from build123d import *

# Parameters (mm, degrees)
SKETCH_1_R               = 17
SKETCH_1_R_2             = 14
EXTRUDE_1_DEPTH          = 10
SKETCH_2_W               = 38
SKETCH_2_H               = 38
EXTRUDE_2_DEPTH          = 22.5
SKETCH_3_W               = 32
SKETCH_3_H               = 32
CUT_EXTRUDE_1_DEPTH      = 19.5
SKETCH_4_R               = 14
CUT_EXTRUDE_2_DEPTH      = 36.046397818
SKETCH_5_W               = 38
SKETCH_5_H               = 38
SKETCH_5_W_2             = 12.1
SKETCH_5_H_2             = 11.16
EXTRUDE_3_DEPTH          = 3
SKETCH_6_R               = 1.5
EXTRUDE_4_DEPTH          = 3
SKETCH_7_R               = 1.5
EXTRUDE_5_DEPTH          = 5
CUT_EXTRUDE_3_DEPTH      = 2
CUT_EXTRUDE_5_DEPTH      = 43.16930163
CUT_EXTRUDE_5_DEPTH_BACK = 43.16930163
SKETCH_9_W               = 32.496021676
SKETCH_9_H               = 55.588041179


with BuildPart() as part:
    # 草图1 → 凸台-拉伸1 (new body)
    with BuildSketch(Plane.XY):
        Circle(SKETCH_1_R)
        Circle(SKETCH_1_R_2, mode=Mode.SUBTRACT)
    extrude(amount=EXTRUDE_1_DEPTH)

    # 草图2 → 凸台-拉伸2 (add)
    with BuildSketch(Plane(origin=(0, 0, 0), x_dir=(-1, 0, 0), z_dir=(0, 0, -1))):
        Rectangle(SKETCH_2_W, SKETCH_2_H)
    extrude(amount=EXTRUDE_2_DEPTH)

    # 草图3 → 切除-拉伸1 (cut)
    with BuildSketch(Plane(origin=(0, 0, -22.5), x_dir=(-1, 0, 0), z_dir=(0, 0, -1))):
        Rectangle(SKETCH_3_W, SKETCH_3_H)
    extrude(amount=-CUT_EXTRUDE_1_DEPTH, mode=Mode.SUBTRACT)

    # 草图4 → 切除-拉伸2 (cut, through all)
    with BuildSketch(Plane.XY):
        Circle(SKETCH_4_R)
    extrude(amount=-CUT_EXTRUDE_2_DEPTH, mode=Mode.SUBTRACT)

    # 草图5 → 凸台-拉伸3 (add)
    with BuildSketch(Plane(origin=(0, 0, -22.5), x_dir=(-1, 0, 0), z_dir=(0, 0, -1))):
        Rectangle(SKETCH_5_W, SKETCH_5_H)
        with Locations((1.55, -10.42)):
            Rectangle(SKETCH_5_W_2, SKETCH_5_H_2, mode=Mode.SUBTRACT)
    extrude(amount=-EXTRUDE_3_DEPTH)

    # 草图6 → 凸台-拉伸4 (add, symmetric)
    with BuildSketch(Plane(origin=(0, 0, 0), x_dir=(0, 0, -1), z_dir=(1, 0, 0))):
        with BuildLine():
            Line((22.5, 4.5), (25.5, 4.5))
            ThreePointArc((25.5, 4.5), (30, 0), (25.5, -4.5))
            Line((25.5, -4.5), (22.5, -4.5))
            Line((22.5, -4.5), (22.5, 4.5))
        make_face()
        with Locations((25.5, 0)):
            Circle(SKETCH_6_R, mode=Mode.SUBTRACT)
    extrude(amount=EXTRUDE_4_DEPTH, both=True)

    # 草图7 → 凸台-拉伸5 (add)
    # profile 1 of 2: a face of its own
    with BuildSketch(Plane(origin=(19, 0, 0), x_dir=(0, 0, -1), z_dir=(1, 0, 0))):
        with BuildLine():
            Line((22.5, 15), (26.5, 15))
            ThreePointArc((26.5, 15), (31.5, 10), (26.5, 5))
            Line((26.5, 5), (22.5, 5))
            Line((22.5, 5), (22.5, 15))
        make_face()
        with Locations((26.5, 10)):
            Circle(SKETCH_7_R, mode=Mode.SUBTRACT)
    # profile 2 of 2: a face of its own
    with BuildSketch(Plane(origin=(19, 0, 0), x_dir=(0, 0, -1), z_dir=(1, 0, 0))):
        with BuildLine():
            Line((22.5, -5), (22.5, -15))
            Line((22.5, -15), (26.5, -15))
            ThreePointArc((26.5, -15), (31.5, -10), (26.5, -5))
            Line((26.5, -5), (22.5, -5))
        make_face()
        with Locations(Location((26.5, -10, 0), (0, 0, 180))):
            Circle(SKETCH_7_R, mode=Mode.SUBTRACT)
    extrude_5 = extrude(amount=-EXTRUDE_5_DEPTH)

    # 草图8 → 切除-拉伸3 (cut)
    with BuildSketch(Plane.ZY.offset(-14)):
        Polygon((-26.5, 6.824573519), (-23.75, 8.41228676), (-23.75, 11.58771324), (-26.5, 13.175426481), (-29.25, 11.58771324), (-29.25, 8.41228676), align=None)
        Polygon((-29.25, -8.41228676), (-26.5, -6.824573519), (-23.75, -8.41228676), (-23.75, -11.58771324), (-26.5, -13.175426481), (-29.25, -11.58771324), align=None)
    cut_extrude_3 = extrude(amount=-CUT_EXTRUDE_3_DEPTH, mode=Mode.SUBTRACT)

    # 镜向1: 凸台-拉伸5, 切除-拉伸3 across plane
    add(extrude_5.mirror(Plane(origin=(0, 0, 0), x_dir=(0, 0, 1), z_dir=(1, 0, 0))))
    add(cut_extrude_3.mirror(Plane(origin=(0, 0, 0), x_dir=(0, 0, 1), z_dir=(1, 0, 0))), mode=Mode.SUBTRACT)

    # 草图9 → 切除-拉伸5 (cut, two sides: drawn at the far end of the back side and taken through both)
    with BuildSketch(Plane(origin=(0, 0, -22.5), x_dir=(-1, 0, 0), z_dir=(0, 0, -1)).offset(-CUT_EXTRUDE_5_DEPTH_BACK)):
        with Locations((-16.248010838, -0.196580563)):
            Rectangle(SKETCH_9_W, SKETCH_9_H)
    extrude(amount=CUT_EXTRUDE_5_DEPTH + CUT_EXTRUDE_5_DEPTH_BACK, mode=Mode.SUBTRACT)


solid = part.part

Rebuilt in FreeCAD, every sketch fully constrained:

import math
import FreeCAD as App
import Part
import Sketcher
from FreeCAD import Vector
Q = App.Units.Quantity

doc = App.newDocument("Part")
params = doc.addObject("Spreadsheet::Sheet", "Params")
for row, (alias, value) in enumerate([
    ("sketch1_diameter", "34 mm"),
    ("sketch1_diameter2", "28 mm"),
    ("pad1_length", "10 mm"),
    ("sketch2_width", "38 mm"),
    ("pad2_length", "22.5 mm"),
    ("sketch3_width", "32 mm"),
    ("pocket1_length", "19.5 mm"),
    ("sketch4_diameter", "28 mm"),
    ("sketch5_width", "38 mm"),
    ("sketch5_width2", "12.1 mm"),
    ("sketch5_height", "11.16 mm"),
    ("pad3_length", "3 mm"),
    ("sketch6_diameter", "3 mm"),
    ("sketch6_radius", "4.5 mm"),
    ("sketch6_height", "3 mm"),
    ("pad4_length", "6 mm"),
    ("sketch7_diameter", "3 mm"),
    ("sketch7_radius", "5 mm"),
    ("sketch7_height", "4 mm"),
    ("pad5_length", "5 mm"),
    ("pocket3_length", "2 mm"),
], start=1):
    params.set(f"A{row}", alias)
    params.set(f"B{row}", "=" + value)
    params.setAlias(f"B{row}", alias)

body = doc.addObject("PartDesign::Body", "Body")

# Sketch on XY plane
sketch1 = body.newObject("Sketcher::SketchObject", "Sketch")
sketch1.AttachmentSupport = (doc.getObject("XY_Plane"), [""])
sketch1.MapMode = "FlatFace"
sketch1.addGeometry([
    Part.Circle(Vector(0, 0, 0), Vector(0, 0, 1), 17),
    Part.Circle(Vector(0, 0, 0), Vector(0, 0, 1), 14),
], False)
sketch1.addConstraint([
    Sketcher.Constraint("Coincident", 0, 3, -1, 1),
    Sketcher.Constraint("Coincident", 1, 3, -1, 1),
    Sketcher.Constraint("Diameter", 0, 34.0),
    Sketcher.Constraint("Diameter", 1, 28.0),
])
sketch1.setExpression("Constraints[2]", "Params.sketch1_diameter")
sketch1.setExpression("Constraints[3]", "Params.sketch1_diameter2")
pad1 = body.newObject("PartDesign::Pad", "Pad")
pad1.Profile = sketch1
pad1.setExpression("Length", "Params.pad1_length")

# Sketch on XY plane
sketch2 = body.newObject("Sketcher::SketchObject", "Sketch001")
sketch2.AttachmentSupport = (doc.getObject("XY_Plane"), [""])
sketch2.MapMode = "FlatFace"
sketch2.addGeometry([
    Part.LineSegment(Vector(19, 19, 0), Vector(19, -19, 0)),
    Part.LineSegment(Vector(19, -19, 0), Vector(-19, -19, 0)),
    Part.LineSegment(Vector(-19, -19, 0), Vector(-19, 19, 0)),
    Part.LineSegment(Vector(-19, 19, 0), Vector(19, 19, 0)),
], False)
sketch2.addConstraint([
    Sketcher.Constraint("Coincident", 0, 2, 1, 1),
    Sketcher.Constraint("Coincident", 1, 2, 2, 1),
    Sketcher.Constraint("Coincident", 2, 2, 3, 1),
    Sketcher.Constraint("Coincident", 3, 2, 0, 1),
    Sketcher.Constraint("Vertical", 0),
    Sketcher.Constraint("Horizontal", 1),
    Sketcher.Constraint("Vertical", 2),
    Sketcher.Constraint("Horizontal", 3),
    Sketcher.Constraint("Symmetric", 0, 2, 2, 2, -1, 1),
    Sketcher.Constraint("Equal", 3, 0),
    Sketcher.Constraint("DistanceX", 1, 2, 1, 1, 38.0),
])
sketch2.setExpression("Constraints[10]", "Params.sketch2_width")
pad2 = body.newObject("PartDesign::Pad", "Pad001")
pad2.Profile = sketch2
pad2.setExpression("Length", "Params.pad2_length")
pad2.Reversed = True

# Sketch on XY plane
sketch3 = body.newObject("Sketcher::SketchObject", "Sketch002")
sketch3.AttachmentSupport = (doc.getObject("XY_Plane"), [""])
sketch3.MapMode = "FlatFace"
sketch3.AttachmentOffset = App.Placement(Vector(0, 0, -22.5), App.Rotation())
sketch3.addGeometry([
    Part.LineSegment(Vector(16, 16, 0), Vector(16, -16, 0)),
    Part.LineSegment(Vector(16, -16, 0), Vector(-16, -16, 0)),
    Part.LineSegment(Vector(-16, -16, 0), Vector(-16, 16, 0)),
    Part.LineSegment(Vector(-16, 16, 0), Vector(16, 16, 0)),
], False)
sketch3.addConstraint([
    Sketcher.Constraint("Coincident", 0, 2, 1, 1),
    Sketcher.Constraint("Coincident", 1, 2, 2, 1),
    Sketcher.Constraint("Coincident", 2, 2, 3, 1),
    Sketcher.Constraint("Coincident", 3, 2, 0, 1),
    Sketcher.Constraint("Vertical", 0),
    Sketcher.Constraint("Horizontal", 1),
    Sketcher.Constraint("Vertical", 2),
    Sketcher.Constraint("Horizontal", 3),
    Sketcher.Constraint("Symmetric", 0, 2, 2, 2, -1, 1),
    Sketcher.Constraint("Equal", 3, 0),
    Sketcher.Constraint("DistanceX", 1, 2, 1, 1, 32.0),
])
sketch3.setExpression("Constraints[10]", "Params.sketch3_width")
pocket1 = body.newObject("PartDesign::Pocket", "Pocket")
pocket1.Profile = sketch3
pocket1.setExpression("Length", "Params.pocket1_length")
pocket1.Reversed = True

# Sketch on XY plane
sketch4 = body.newObject("Sketcher::SketchObject", "Sketch003")
sketch4.AttachmentSupport = (doc.getObject("XY_Plane"), [""])
sketch4.MapMode = "FlatFace"
sketch4.addGeometry(Part.Circle(Vector(0, 0, 0), Vector(0, 0, 1), 14), False)
sketch4.addConstraint([
    Sketcher.Constraint("Coincident", 0, 3, -1, 1),
    Sketcher.Constraint("Diameter", 0, 28.0),
])
sketch4.setExpression("Constraints[1]", "Params.sketch4_diameter")
pocket2 = body.newObject("PartDesign::Pocket", "Pocket001")
pocket2.Profile = sketch4
pocket2.Type = "ThroughAll"

# Sketch on XY plane
sketch5 = body.newObject("Sketcher::SketchObject", "Sketch004")
sketch5.AttachmentSupport = (doc.getObject("XY_Plane"), [""])
sketch5.MapMode = "FlatFace"
sketch5.AttachmentOffset = App.Placement(Vector(0, 0, -22.5), App.Rotation())
sketch5.addGeometry([
    Part.LineSegment(Vector(19, 19, 0), Vector(19, -19, 0)),  # 0
    Part.LineSegment(Vector(19, -19, 0), Vector(-19, -19, 0)),  # 1
    Part.LineSegment(Vector(-19, -19, 0), Vector(-19, 19, 0)),  # 2
    Part.LineSegment(Vector(-19, 19, 0), Vector(19, 19, 0)),  # 3
    Part.LineSegment(Vector(-8, -16, 0), Vector(4, -16, 0)),  # 4
    Part.LineSegment(Vector(4, -16, 0), Vector(4, -5, 0)),  # 5
    Part.LineSegment(Vector(4, -5, 0), Vector(-8, -5, 0)),  # 6
    Part.LineSegment(Vector(-8, -5, 0), Vector(-8, -16, 0)),  # 7
], False)
sketch5.addConstraint([
    Sketcher.Constraint("Coincident", 0, 2, 1, 1),
    Sketcher.Constraint("Coincident", 1, 2, 2, 1),
    Sketcher.Constraint("Coincident", 2, 2, 3, 1),
    Sketcher.Constraint("Coincident", 3, 2, 0, 1),
    Sketcher.Constraint("Coincident", 4, 2, 5, 1),
    Sketcher.Constraint("Coincident", 5, 2, 6, 1),
    Sketcher.Constraint("Coincident", 6, 2, 7, 1),
    Sketcher.Constraint("Coincident", 7, 2, 4, 1),
    Sketcher.Constraint("Vertical", 0),
    Sketcher.Constraint("Horizontal", 1),
    Sketcher.Constraint("Vertical", 2),
    Sketcher.Constraint("Horizontal", 3),
    Sketcher.Constraint("Horizontal", 4),
    Sketcher.Constraint("Vertical", 5),
    Sketcher.Constraint("Horizontal", 6),
    Sketcher.Constraint("Vertical", 7),
    Sketcher.Constraint("Symmetric", 0, 2, 2, 2, -1, 1),
    Sketcher.Constraint("Equal", 3, 0),
    Sketcher.Constraint("DistanceX", 1, 2, 1, 1, 38.0),
    Sketcher.Constraint("DistanceX", 4, 1, 4, 2, 12.1),
    Sketcher.Constraint("DistanceY", 4, 2, -1, 1, 16.0),
    Sketcher.Constraint("DistanceY", 5, 1, 5, 2, 11.16),
    Sketcher.Constraint("DistanceX", -1, 1, 4, 2, 4.5),
])
sketch5.setExpression("Constraints[18]", "Params.sketch5_width")
sketch5.setExpression("Constraints[19]", "Params.sketch5_width2")
sketch5.setExpression("Constraints[21]", "Params.sketch5_height")
pad3 = body.newObject("PartDesign::Pad", "Pad002")
pad3.Profile = sketch5
pad3.setExpression("Length", "Params.pad3_length")

# Sketch on YZ plane
sketch6 = body.newObject("Sketcher::SketchObject", "Sketch005")
sketch6.AttachmentSupport = (doc.getObject("YZ_Plane"), [""])
sketch6.MapMode = "FlatFace"
sketch6.addGeometry([
    Part.LineSegment(Vector(4.5, -25.5, 0), Vector(4.5, -22.5, 0)),  # 0
    Part.LineSegment(Vector(4.5, -22.5, 0), Vector(-4.5, -22.5, 0)),  # 1
    Part.LineSegment(Vector(-4.5, -22.5, 0), Vector(-4.5, -25.5, 0)),  # 2
    Part.ArcOfCircle(Part.Circle(Vector(0, -25.5, 0), Vector(0, 0, 1), 4.5), math.radians(180), math.radians(360)),  # 3
    Part.Circle(Vector(0, -25.5, 0), Vector(0, 0, 1), 1.5),  # 4
], False)
sketch6.addConstraint([
    Sketcher.Constraint("Coincident", 0, 2, 1, 1),
    Sketcher.Constraint("Coincident", 1, 2, 2, 1),
    Sketcher.Constraint("Tangent", 2, 2, 3, 1),
    Sketcher.Constraint("Tangent", 3, 2, 0, 1),
    Sketcher.Constraint("Vertical", 0),
    Sketcher.Constraint("Horizontal", 1),
    Sketcher.Constraint("Vertical", 2),
    Sketcher.Constraint("Coincident", 4, 3, 3, 3),
    Sketcher.Constraint("PointOnObject", 3, 3, -2),
    Sketcher.Constraint("Diameter", 4, 3.0),
    Sketcher.Constraint("Radius", 3, 4.5),
    Sketcher.Constraint("DistanceY", 0, 1, 0, 2, 3.0),
    Sketcher.Constraint("DistanceY", 3, 3, -1, 1, 25.5),
])
sketch6.setExpression("Constraints[9]", "Params.sketch6_diameter")
sketch6.setExpression("Constraints[10]", "Params.sketch6_radius")
sketch6.setExpression("Constraints[11]", "Params.sketch6_height")
pad4 = body.newObject("PartDesign::Pad", "Pad003")
pad4.Profile = sketch6
pad4.setExpression("Length", "Params.pad4_length")
pad4.Midplane = True

# Sketch on YZ plane
sketch7 = body.newObject("Sketcher::SketchObject", "Sketch006")
sketch7.AttachmentSupport = (doc.getObject("YZ_Plane"), [""])
sketch7.MapMode = "FlatFace"
sketch7.AttachmentOffset = App.Placement(Vector(0, 0, 19), App.Rotation())
sketch7.addGeometry([
    Part.LineSegment(Vector(15, -26.5, 0), Vector(15, -22.5, 0)),  # 0
    Part.LineSegment(Vector(15, -22.5, 0), Vector(5, -22.5, 0)),  # 1
    Part.LineSegment(Vector(5, -22.5, 0), Vector(5, -26.5, 0)),  # 2
    Part.ArcOfCircle(Part.Circle(Vector(10, -26.5, 0), Vector(0, 0, 1), 5), math.radians(180), math.radians(360)),  # 3
    Part.Circle(Vector(10, -26.5, 0), Vector(0, 0, 1), 1.5),  # 4
    Part.LineSegment(Vector(-5, -22.5, 0), Vector(-15, -22.5, 0)),  # 5
    Part.LineSegment(Vector(-15, -22.5, 0), Vector(-15, -26.5, 0)),  # 6
    Part.ArcOfCircle(Part.Circle(Vector(-10, -26.5, 0), Vector(0, 0, 1), 5), math.radians(180), math.radians(360)),  # 7
    Part.LineSegment(Vector(-5, -26.5, 0), Vector(-5, -22.5, 0)),  # 8
    Part.Circle(Vector(-10, -26.5, 0), Vector(0, 0, 1), 1.5),  # 9
], False)
sketch7.addConstraint([
    Sketcher.Constraint("Coincident", 0, 2, 1, 1),
    Sketcher.Constraint("Coincident", 1, 2, 2, 1),
    Sketcher.Constraint("Tangent", 2, 2, 3, 1),
    Sketcher.Constraint("Tangent", 3, 2, 0, 1),
    Sketcher.Constraint("Coincident", 5, 2, 6, 1),
    Sketcher.Constraint("Tangent", 6, 2, 7, 1),
    Sketcher.Constraint("Tangent", 7, 2, 8, 1),
    Sketcher.Constraint("Coincident", 8, 2, 5, 1),
    Sketcher.Constraint("Vertical", 0),
    Sketcher.Constraint("Horizontal", 1),
    Sketcher.Constraint("Vertical", 2),
    Sketcher.Constraint("Horizontal", 5),
    Sketcher.Constraint("Vertical", 6),
    Sketcher.Constraint("Vertical", 8),
    Sketcher.Constraint("Coincident", 4, 3, 3, 3),
    Sketcher.Constraint("Coincident", 9, 3, 7, 3),
    Sketcher.Constraint("Equal", 3, 7),
    Sketcher.Constraint("Equal", 4, 9),
    Sketcher.Constraint("Symmetric", 3, 3, 7, 3, -2),
    Sketcher.Constraint("Horizontal", 1, 2, 5, 2),
    Sketcher.Constraint("Diameter", 4, 3.0),
    Sketcher.Constraint("Radius", 3, 5.0),
    Sketcher.Constraint("DistanceY", 0, 1, 0, 2, 4.0),
    Sketcher.Constraint("DistanceX", -1, 1, 3, 3, 10.0),
    Sketcher.Constraint("DistanceY", 3, 3, -1, 1, 26.5),
])
sketch7.setExpression("Constraints[20]", "Params.sketch7_diameter")
sketch7.setExpression("Constraints[21]", "Params.sketch7_radius")
sketch7.setExpression("Constraints[22]", "Params.sketch7_height")
pad5 = body.newObject("PartDesign::Pad", "Pad004")
pad5.Profile = sketch7
pad5.setExpression("Length", "Params.pad5_length")
pad5.Reversed = True

# Sketch on YZ plane
sketch8 = body.newObject("Sketcher::SketchObject", "Sketch007")
sketch8.AttachmentSupport = (doc.getObject("YZ_Plane"), [""])
sketch8.MapMode = "FlatFace"
sketch8.AttachmentOffset = App.Placement(Vector(0, 0, 14), App.Rotation())
sketch8.addGeometry([
    Part.LineSegment(Vector(6.8, -26.5, 0), Vector(8.4, -23.8, 0)),  # 0
    Part.LineSegment(Vector(8.4, -23.8, 0), Vector(11.6, -23.8, 0)),  # 1
    Part.LineSegment(Vector(11.6, -23.8, 0), Vector(13.2, -26.5, 0)),  # 2
    Part.LineSegment(Vector(13.2, -26.5, 0), Vector(11.6, -29.2, 0)),  # 3
    Part.LineSegment(Vector(11.6, -29.2, 0), Vector(8.4, -29.2, 0)),  # 4
    Part.LineSegment(Vector(8.4, -29.2, 0), Vector(6.8, -26.5, 0)),  # 5
    Part.LineSegment(Vector(-6.8, -26.5, 0), Vector(-8.4, -29.2, 0)),  # 6
    Part.LineSegment(Vector(-8.4, -29.2, 0), Vector(-11.6, -29.2, 0)),  # 7
    Part.LineSegment(Vector(-11.6, -29.2, 0), Vector(-13.2, -26.5, 0)),  # 8
    Part.LineSegment(Vector(-13.2, -26.5, 0), Vector(-11.6, -23.8, 0)),  # 9
    Part.LineSegment(Vector(-11.6, -23.8, 0), Vector(-8.4, -23.8, 0)),  # 10
    Part.LineSegment(Vector(-8.4, -23.8, 0), Vector(-6.8, -26.5, 0)),  # 11
], False)
sketch8.addConstraint([
    Sketcher.Constraint("Coincident", 0, 2, 1, 1),
    Sketcher.Constraint("Coincident", 1, 2, 2, 1),
    Sketcher.Constraint("Coincident", 2, 2, 3, 1),
    Sketcher.Constraint("Coincident", 3, 2, 4, 1),
    Sketcher.Constraint("Coincident", 4, 2, 5, 1),
    Sketcher.Constraint("Coincident", 5, 2, 0, 1),
    Sketcher.Constraint("Coincident", 6, 2, 7, 1),
    Sketcher.Constraint("Coincident", 7, 2, 8, 1),
    Sketcher.Constraint("Coincident", 8, 2, 9, 1),
    Sketcher.Constraint("Coincident", 9, 2, 10, 1),
    Sketcher.Constraint("Coincident", 10, 2, 11, 1),
    Sketcher.Constraint("Coincident", 11, 2, 6, 1),
    Sketcher.Constraint("Horizontal", 1),
    Sketcher.Constraint("Horizontal", 4),
    Sketcher.Constraint("Horizontal", 7),
    Sketcher.Constraint("Horizontal", 10),
    Sketcher.Constraint("Symmetric", 4, 2, 6, 2, -2),
    Sketcher.Constraint("Symmetric", 2, 2, 8, 2, -2),
    Sketcher.Constraint("Symmetric", 1, 2, 9, 2, -2),
    Sketcher.Constraint("Symmetric", 5, 2, 11, 2, -2),
    Sketcher.Constraint("Parallel", 0, 3),
    Sketcher.Constraint("Parallel", 2, 5),
    Sketcher.Constraint("Parallel", 3, 6),
    Sketcher.Constraint("Parallel", 5, 8),
    Sketcher.Constraint("Parallel", 8, 11),
    Sketcher.Constraint("Horizontal", 2, 2, 5, 2),
    Sketcher.Constraint("Vertical", 1, 2, 3, 2),
    Sketcher.Constraint("Angle", 0, Q("60 deg")),
    Sketcher.Constraint("DistanceX", 6, 2, 3, 2, 20.0),
    Sketcher.Constraint("DistanceY", 2, 2, -1, 1, 26.5),
    Sketcher.Constraint("DistanceY", 3, 2, 1, 2, 5.5),
    Sketcher.Constraint("DistanceX", 1, 1, 1, 2, 3.175426),
])
pocket3 = body.newObject("PartDesign::Pocket", "Pocket002")
pocket3.Profile = sketch8
pocket3.setExpression("Length", "Params.pocket3_length")
pocket3.Reversed = True
doc.recompute()

mirrored = body.newObject("PartDesign::Mirrored", "Mirrored")
mirrored.Originals = [pad5, pocket3]
mirrored.MirrorPlane = (doc.getObject("YZ_Plane"), [""])
body.Tip = mirrored

# Sketch on XY plane
sketch9 = body.newObject("Sketcher::SketchObject", "Sketch008")
sketch9.AttachmentSupport = (doc.getObject("XY_Plane"), [""])
sketch9.MapMode = "FlatFace"
sketch9.AttachmentOffset = App.Placement(Vector(0, 0, -22.5), App.Rotation())
sketch9.addGeometry([
    Part.LineSegment(Vector(32, 28, 0), Vector(32, -28, 0)),
    Part.LineSegment(Vector(32, -28, 0), Vector(0, -28, 0)),
    Part.LineSegment(Vector(0, -28, 0), Vector(0, 28, 0)),
    Part.LineSegment(Vector(0, 28, 0), Vector(32, 28, 0)),
], False)
sketch9.addConstraint([
    Sketcher.Constraint("Coincident", 0, 2, 1, 1),
    Sketcher.Constraint("Coincident", 1, 2, 2, 1),
    Sketcher.Constraint("Coincident", 2, 2, 3, 1),
    Sketcher.Constraint("Coincident", 3, 2, 0, 1),
    Sketcher.Constraint("Vertical", 0),
    Sketcher.Constraint("Horizontal", 1),
    Sketcher.Constraint("Vertical", 2),
    Sketcher.Constraint("Horizontal", 3),
    Sketcher.Constraint("PointOnObject", 1, 2, -2),
    Sketcher.Constraint("DistanceX", 1, 2, 1, 1, 32.496022),
    Sketcher.Constraint("DistanceY", 0, 2, 0, 1, 55.588041),
    Sketcher.Constraint("DistanceY", 0, 2, -1, 1, 27.990601),
])
pocket4 = body.newObject("PartDesign::Pocket", "Pocket003")
pocket4.Profile = sketch9
pocket4.Type = "ThroughAll"
pocket4.Midplane = True

doc.recompute()
